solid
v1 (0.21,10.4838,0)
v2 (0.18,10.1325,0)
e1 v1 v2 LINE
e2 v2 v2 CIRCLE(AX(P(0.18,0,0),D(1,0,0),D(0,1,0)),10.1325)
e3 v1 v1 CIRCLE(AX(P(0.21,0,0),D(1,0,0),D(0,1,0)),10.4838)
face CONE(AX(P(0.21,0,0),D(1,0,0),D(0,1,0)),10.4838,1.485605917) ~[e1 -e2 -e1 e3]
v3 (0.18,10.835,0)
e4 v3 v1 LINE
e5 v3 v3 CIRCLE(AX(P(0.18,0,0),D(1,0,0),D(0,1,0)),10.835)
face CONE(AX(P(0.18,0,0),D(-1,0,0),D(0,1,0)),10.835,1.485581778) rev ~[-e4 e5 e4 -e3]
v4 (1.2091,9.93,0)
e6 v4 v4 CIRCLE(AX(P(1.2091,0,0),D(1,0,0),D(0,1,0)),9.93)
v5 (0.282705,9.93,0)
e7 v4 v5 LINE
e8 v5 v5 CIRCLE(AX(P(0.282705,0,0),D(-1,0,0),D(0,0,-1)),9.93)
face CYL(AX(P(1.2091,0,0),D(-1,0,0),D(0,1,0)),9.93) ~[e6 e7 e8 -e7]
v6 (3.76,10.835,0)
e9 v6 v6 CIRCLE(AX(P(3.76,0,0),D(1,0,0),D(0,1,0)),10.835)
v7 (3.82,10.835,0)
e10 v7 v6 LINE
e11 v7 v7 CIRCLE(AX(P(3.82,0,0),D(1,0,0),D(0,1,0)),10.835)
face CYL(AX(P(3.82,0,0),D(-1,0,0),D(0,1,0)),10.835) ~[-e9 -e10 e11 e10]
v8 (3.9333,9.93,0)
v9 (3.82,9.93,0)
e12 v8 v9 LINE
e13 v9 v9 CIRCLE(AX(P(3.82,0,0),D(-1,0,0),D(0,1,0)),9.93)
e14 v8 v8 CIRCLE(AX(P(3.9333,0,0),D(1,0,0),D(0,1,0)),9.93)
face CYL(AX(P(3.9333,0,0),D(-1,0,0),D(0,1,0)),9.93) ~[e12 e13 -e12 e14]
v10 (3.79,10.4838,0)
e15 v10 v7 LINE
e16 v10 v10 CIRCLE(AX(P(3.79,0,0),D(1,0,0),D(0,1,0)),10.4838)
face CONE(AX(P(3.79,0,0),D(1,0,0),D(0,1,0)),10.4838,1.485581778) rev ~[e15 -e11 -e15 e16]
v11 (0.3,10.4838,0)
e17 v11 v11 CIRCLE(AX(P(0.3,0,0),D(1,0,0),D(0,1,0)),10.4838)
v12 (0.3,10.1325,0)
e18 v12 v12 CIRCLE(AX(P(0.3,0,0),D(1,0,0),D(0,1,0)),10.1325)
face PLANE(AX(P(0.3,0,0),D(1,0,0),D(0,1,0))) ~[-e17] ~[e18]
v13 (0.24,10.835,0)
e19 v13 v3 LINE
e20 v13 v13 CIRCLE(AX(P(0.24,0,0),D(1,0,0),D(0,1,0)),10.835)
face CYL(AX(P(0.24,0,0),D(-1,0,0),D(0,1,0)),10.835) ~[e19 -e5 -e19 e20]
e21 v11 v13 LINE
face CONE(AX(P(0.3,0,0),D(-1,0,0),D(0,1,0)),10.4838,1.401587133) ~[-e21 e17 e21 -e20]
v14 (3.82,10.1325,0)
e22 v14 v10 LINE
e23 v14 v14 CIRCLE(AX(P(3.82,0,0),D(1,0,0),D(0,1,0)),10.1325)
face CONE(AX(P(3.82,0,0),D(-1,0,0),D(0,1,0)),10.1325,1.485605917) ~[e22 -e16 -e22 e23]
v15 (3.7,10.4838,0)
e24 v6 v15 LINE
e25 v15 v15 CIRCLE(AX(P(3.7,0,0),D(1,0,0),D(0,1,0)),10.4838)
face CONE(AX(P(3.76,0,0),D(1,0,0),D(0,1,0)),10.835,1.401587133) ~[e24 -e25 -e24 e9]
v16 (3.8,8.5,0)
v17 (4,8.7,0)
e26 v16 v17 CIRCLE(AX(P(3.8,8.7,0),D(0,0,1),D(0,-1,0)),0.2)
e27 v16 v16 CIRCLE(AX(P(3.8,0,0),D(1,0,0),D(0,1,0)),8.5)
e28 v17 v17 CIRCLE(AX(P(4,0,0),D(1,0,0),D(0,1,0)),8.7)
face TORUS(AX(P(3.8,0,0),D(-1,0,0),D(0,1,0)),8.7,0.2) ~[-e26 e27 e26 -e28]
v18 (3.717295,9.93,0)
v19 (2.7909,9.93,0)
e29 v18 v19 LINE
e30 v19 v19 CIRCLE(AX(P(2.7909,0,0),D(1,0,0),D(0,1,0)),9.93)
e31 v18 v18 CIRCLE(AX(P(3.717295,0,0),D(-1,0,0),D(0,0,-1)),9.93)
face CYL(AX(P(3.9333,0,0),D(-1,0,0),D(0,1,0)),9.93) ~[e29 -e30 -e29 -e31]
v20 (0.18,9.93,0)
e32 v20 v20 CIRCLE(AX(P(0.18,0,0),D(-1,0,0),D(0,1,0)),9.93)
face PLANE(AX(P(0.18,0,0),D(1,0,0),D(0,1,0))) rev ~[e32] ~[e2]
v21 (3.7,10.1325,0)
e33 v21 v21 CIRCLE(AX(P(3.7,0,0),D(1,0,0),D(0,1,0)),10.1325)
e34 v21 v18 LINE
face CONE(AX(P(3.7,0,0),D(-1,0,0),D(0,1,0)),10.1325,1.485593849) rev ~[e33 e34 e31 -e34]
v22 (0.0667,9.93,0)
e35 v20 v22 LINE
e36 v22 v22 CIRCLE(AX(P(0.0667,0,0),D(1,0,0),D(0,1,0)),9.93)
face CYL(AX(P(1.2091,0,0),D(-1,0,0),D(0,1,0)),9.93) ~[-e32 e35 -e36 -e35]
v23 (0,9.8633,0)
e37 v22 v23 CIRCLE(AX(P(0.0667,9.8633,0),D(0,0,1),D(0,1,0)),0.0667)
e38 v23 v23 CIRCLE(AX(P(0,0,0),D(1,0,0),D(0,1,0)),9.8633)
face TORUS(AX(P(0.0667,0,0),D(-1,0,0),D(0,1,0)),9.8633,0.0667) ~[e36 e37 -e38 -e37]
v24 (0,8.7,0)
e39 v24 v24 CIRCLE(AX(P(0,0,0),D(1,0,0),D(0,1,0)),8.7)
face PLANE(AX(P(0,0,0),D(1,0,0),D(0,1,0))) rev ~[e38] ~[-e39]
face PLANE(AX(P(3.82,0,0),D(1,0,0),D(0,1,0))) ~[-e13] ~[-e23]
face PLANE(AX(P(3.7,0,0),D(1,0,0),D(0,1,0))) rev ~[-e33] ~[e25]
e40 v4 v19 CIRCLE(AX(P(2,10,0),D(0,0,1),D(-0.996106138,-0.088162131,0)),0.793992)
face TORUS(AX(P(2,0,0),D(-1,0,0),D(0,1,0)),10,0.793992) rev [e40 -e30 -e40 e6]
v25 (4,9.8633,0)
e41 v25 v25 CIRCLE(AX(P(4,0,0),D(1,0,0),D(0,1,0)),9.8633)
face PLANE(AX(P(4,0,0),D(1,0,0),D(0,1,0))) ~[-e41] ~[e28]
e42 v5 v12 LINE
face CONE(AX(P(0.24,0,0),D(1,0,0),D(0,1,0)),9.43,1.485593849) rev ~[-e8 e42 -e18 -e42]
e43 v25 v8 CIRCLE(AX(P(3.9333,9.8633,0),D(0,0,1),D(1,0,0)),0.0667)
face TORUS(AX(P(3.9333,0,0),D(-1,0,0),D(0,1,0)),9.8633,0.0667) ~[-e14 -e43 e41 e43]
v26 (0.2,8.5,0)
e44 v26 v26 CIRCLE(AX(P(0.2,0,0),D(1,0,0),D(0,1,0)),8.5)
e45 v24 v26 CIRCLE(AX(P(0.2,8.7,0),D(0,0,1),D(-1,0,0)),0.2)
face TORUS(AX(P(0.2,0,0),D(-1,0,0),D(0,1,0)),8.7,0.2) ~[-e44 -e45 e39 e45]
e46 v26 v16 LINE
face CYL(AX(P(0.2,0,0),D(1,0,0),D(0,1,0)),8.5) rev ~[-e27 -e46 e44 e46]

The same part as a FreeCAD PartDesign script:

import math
import FreeCAD as App
import Part
import Sketcher

V = App.Vector
Q = App.Units.Quantity

doc = App.newDocument("Part")
body = doc.addObject("PartDesign::Body", "Body")

sketch1 = body.newObject("Sketcher::SketchObject", "Sketch")
sketch1.AttachmentSupport = (doc.getObject("XY_Plane"), [""])
sketch1.MapMode = "FlatFace"
sketch1.addGeometry([
    Part.ArcOfCircle(Part.Circle(V(0.0667, 9.8633, 0), V(0, 0, 1), 0.0667), math.radians(90), math.radians(180)),
    Part.LineSegment(V(0, 9.8633, 0), V(0, 8.7, 0)),
    Part.ArcOfCircle(Part.Circle(V(0.2, 8.7, 0), V(0, 0, 1), 0.2), math.radians(180), math.radians(270)),
    Part.LineSegment(V(0.2, 8.5, 0), V(3.8, 8.5, 0)),
    Part.ArcOfCircle(Part.Circle(V(3.8, 8.7, 0), V(0, 0, 1), 0.2), math.radians(-90), math.radians(0)),
    Part.LineSegment(V(4, 8.7, 0), V(4, 9.8633, 0)),
    Part.ArcOfCircle(Part.Circle(V(3.9333, 9.8633, 0), V(0, 0, 1), 0.0667), math.radians(0), math.radians(90)),
    Part.LineSegment(V(3.9333, 9.93, 0), V(2.7909, 9.93, 0)),
    Part.ArcOfCircle(Part.Circle(V(2, 10, 0), V(0, 0, 1), 0.793992), math.radians(-174.942115), math.radians(-5.057885)),
    Part.LineSegment(V(1.2091, 9.93, 0), V(0.0667, 9.93, 0)),
], False)
sketch1.addConstraint([
    Sketcher.Constraint("Tangent", 0, 2, 1, 1),
    Sketcher.Constraint("Tangent", 1, 2, 2, 1),
    Sketcher.Constraint("Tangent", 2, 2, 3, 1),
    Sketcher.Constraint("Tangent", 3, 2, 4, 1),
    Sketcher.Constraint("Tangent", 4, 2, 5, 1),
    Sketcher.Constraint("Tangent", 5, 2, 6, 1),
    Sketcher.Constraint("Tangent", 6, 2, 7, 1),
    Sketcher.Constraint("Coincident", 7, 2, 8, 2),
    Sketcher.Constraint("Coincident", 8, 1, 9, 1),
    Sketcher.Constraint("Tangent", 9, 2, 0, 1),
    Sketcher.Constraint("Vertical", 1),
    Sketcher.Constraint("Horizontal", 3),
    Sketcher.Constraint("Vertical", 5),
    Sketcher.Constraint("Horizontal", 7),
    Sketcher.Constraint("Horizontal", 9),
    Sketcher.Constraint("Equal", 2, 4),
    Sketcher.Constraint("Equal", 0, 6),
    Sketcher.Constraint("PointOnObject", 0, 2, -2),
    Sketcher.Constraint("Horizontal", 0, 3, 6, 3),
    Sketcher.Constraint("Equal", 7, 9),
    Sketcher.Constraint("Radius", 2, Q("0.2 mm")),
    Sketcher.Constraint("DistanceX", 3, 1, 3, 2, Q("3.6 mm")),
    Sketcher.Constraint("DistanceY", -1, 1, 8, 3, Q("10 mm")),
    Sketcher.Constraint("Radius", 8, Q("0.794 mm")),
    Sketcher.Constraint("DistanceY", -1, 1, 2, 3, Q("8.7 mm")),
    Sketcher.Constraint("Radius", 0, Q("0.0667 mm")),
    Sketcher.Constraint("DistanceY", -1, 1, 6, 2, Q("9.93 mm")),
])
revolution = body.newObject("PartDesign::Revolution", "Revolution")
revolution.Profile = sketch1
revolution.ReferenceAxis = (sketch1, ["H_Axis"])
revolution.Angle = 360

sketch2 = body.newObject("Sketcher::SketchObject", "Sketch001")
sketch2.AttachmentSupport = (doc.getObject("XY_Plane"), [""])
sketch2.MapMode = "FlatFace"
sketch2.addGeometry([
    Part.LineSegment(V(0.24, 10.835, 0), V(0.18, 10.835, 0)),
    Part.LineSegment(V(0.18, 10.835, 0), V(0.21, 10.4838, 0)),
    Part.LineSegment(V(0.21, 10.4838, 0), V(0.18, 10.1325, 0)),
    Part.LineSegment(V(0.18, 10.1325, 0), V(0.18, 9.43, 0)),
    Part.LineSegment(V(0.18, 9.43, 0), V(0.24, 9.43, 0)),
    Part.LineSegment(V(0.24, 9.43, 0), V(0.3, 10.1325, 0)),
    Part.LineSegment(V(0.3, 10.1325, 0), V(0.3, 10.4838, 0)),
    Part.LineSegment(V(0.3, 10.4838, 0), V(0.24, 10.835, 0)),
], False)
sketch2.addConstraint([
    Sketcher.Constraint("Coincident", 0, 2, 1, 1),
    Sketcher.Constraint("Coincident", 1, 2, 2, 1),
    Sketcher.Constraint("Coincident", 2, 2, 3, 1),
    Sketcher.Constraint("Coincident", 3, 2, 4, 1),
    Sketcher.Constraint("Coincident", 4, 2, 5, 1),
    Sketcher.Constraint("Coincident", 5, 2, 6, 1),
    Sketcher.Constraint("Coincident", 6, 2, 7, 1),
    Sketcher.Constraint("Coincident", 7, 2, 0, 1),
    Sketcher.Constraint("Horizontal", 0),
    Sketcher.Constraint("Vertical", 3),
    Sketcher.Constraint("Horizontal", 4),
    Sketcher.Constraint("Vertical", 6),
    Sketcher.Constraint("Parallel", 2, 5),
    Sketcher.Constraint("Horizontal", 2, 2, 5, 2),
    Sketcher.Constraint("Horizontal", 1, 2, 6, 2),
    Sketcher.Constraint("Vertical", 0, 2, 2, 2),
    Sketcher.Constraint("Vertical", 4, 2, 7, 2),
    Sketcher.Constraint("Equal", 1, 2),
    Sketcher.Constraint("DistanceX", 0, 2, 0, 1, Q("0.06 mm")),
    Sketcher.Constraint("DistanceX", -1, 1, 5, 2, Q("0.3 mm")),
    Sketcher.Constraint("Angle", 2, Q("-94.881 deg")),
    Sketcher.Constraint("DistanceX", -1, 1, 0, 2, Q("0.18 mm")),
    Sketcher.Constraint("DistanceX", -1, 1, 1, 2, Q("0.21 mm")),
    Sketcher.Constraint("DistanceY", -1, 1, 3, 2, Q("9.43 mm")),
])
revolution2 = body.newObject("PartDesign::Revolution", "Revolution001")
revolution2.Profile = sketch2
revolution2.ReferenceAxis = (sketch2, ["H_Axis"])
revolution2.Angle = 360

sketch3 = body.newObject("Sketcher::SketchObject", "Sketch002")
sketch3.AttachmentSupport = (doc.getObject("XY_Plane"), [""])
sketch3.MapMode = "FlatFace"
sketch3.addGeometry([
    Part.LineSegment(V(3.76, 10.835, 0), V(3.7, 10.4838, 0)),
    Part.LineSegment(V(3.7, 10.4838, 0), V(3.7, 10.1325, 0)),
    Part.LineSegment(V(3.7, 10.1325, 0), V(3.76, 9.43, 0)),
    Part.LineSegment(V(3.76, 9.43, 0), V(3.82, 9.43, 0)),
    Part.LineSegment(V(3.82, 9.43, 0), V(3.82, 10.1325, 0)),
    Part.LineSegment(V(3.82, 10.1325, 0), V(3.79, 10.4838, 0)),
    Part.LineSegment(V(3.79, 10.4838, 0), V(3.82, 10.835, 0)),
    Part.LineSegment(V(3.82, 10.835, 0), V(3.76, 10.835, 0)),
], False)
sketch3.addConstraint([
    Sketcher.Constraint("Coincident", 0, 2, 1, 1),
    Sketcher.Constraint("Coincident", 1, 2, 2, 1),
    Sketcher.Constraint("Coincident", 2, 2, 3, 1),
    Sketcher.Constraint("Coincident", 3, 2, 4, 1),
    Sketcher.Constraint("Coincident", 4, 2, 5, 1),
    Sketcher.Constraint("Coincident", 5, 2, 6, 1),
    Sketcher.Constraint("Coincident", 6, 2, 7, 1),
    Sketcher.Constraint("Coincident", 7, 2, 0, 1),
    Sketcher.Constraint("Vertical", 1),
    Sketcher.Constraint("Horizontal", 3),
    Sketcher.Constraint("Vertical", 4),
    Sketcher.Constraint("Horizontal", 7),
    Sketcher.Constraint("Parallel", 2, 5),
    Sketcher.Constraint("Horizontal", 1, 2, 4, 2),
    Sketcher.Constraint("Horizontal", 0, 2, 5, 2),
    Sketcher.Constraint("Vertical", 4, 2, 6, 2),
    Sketcher.Constraint("Vertical", 2, 2, 7, 2),
    Sketcher.Constraint("Equal", 5, 6),
    Sketcher.Constraint("DistanceX", 3, 1, 3, 2, Q("0.06 mm")),
    Sketcher.Constraint("DistanceX", -1, 1, 0, 2, Q("3.7 mm")),
    Sketcher.Constraint("Angle", 5, Q("94.881 deg")),
    Sketcher.Constraint("DistanceX", -1, 1, 2, 2, Q("3.76 mm")),
    Sketcher.Constraint("DistanceY", -1, 1, 2, 2, Q("9.43 mm")),
    Sketcher.Constraint("DistanceX", -1, 1, 5, 2, Q("3.79 mm")),
])
revolution3 = body.newObject("PartDesign::Revolution", "Revolution002")
revolution3.Profile = sketch3
revolution3.ReferenceAxis = (sketch3, ["H_Axis"])
revolution3.Angle = 360

doc.recompute()
